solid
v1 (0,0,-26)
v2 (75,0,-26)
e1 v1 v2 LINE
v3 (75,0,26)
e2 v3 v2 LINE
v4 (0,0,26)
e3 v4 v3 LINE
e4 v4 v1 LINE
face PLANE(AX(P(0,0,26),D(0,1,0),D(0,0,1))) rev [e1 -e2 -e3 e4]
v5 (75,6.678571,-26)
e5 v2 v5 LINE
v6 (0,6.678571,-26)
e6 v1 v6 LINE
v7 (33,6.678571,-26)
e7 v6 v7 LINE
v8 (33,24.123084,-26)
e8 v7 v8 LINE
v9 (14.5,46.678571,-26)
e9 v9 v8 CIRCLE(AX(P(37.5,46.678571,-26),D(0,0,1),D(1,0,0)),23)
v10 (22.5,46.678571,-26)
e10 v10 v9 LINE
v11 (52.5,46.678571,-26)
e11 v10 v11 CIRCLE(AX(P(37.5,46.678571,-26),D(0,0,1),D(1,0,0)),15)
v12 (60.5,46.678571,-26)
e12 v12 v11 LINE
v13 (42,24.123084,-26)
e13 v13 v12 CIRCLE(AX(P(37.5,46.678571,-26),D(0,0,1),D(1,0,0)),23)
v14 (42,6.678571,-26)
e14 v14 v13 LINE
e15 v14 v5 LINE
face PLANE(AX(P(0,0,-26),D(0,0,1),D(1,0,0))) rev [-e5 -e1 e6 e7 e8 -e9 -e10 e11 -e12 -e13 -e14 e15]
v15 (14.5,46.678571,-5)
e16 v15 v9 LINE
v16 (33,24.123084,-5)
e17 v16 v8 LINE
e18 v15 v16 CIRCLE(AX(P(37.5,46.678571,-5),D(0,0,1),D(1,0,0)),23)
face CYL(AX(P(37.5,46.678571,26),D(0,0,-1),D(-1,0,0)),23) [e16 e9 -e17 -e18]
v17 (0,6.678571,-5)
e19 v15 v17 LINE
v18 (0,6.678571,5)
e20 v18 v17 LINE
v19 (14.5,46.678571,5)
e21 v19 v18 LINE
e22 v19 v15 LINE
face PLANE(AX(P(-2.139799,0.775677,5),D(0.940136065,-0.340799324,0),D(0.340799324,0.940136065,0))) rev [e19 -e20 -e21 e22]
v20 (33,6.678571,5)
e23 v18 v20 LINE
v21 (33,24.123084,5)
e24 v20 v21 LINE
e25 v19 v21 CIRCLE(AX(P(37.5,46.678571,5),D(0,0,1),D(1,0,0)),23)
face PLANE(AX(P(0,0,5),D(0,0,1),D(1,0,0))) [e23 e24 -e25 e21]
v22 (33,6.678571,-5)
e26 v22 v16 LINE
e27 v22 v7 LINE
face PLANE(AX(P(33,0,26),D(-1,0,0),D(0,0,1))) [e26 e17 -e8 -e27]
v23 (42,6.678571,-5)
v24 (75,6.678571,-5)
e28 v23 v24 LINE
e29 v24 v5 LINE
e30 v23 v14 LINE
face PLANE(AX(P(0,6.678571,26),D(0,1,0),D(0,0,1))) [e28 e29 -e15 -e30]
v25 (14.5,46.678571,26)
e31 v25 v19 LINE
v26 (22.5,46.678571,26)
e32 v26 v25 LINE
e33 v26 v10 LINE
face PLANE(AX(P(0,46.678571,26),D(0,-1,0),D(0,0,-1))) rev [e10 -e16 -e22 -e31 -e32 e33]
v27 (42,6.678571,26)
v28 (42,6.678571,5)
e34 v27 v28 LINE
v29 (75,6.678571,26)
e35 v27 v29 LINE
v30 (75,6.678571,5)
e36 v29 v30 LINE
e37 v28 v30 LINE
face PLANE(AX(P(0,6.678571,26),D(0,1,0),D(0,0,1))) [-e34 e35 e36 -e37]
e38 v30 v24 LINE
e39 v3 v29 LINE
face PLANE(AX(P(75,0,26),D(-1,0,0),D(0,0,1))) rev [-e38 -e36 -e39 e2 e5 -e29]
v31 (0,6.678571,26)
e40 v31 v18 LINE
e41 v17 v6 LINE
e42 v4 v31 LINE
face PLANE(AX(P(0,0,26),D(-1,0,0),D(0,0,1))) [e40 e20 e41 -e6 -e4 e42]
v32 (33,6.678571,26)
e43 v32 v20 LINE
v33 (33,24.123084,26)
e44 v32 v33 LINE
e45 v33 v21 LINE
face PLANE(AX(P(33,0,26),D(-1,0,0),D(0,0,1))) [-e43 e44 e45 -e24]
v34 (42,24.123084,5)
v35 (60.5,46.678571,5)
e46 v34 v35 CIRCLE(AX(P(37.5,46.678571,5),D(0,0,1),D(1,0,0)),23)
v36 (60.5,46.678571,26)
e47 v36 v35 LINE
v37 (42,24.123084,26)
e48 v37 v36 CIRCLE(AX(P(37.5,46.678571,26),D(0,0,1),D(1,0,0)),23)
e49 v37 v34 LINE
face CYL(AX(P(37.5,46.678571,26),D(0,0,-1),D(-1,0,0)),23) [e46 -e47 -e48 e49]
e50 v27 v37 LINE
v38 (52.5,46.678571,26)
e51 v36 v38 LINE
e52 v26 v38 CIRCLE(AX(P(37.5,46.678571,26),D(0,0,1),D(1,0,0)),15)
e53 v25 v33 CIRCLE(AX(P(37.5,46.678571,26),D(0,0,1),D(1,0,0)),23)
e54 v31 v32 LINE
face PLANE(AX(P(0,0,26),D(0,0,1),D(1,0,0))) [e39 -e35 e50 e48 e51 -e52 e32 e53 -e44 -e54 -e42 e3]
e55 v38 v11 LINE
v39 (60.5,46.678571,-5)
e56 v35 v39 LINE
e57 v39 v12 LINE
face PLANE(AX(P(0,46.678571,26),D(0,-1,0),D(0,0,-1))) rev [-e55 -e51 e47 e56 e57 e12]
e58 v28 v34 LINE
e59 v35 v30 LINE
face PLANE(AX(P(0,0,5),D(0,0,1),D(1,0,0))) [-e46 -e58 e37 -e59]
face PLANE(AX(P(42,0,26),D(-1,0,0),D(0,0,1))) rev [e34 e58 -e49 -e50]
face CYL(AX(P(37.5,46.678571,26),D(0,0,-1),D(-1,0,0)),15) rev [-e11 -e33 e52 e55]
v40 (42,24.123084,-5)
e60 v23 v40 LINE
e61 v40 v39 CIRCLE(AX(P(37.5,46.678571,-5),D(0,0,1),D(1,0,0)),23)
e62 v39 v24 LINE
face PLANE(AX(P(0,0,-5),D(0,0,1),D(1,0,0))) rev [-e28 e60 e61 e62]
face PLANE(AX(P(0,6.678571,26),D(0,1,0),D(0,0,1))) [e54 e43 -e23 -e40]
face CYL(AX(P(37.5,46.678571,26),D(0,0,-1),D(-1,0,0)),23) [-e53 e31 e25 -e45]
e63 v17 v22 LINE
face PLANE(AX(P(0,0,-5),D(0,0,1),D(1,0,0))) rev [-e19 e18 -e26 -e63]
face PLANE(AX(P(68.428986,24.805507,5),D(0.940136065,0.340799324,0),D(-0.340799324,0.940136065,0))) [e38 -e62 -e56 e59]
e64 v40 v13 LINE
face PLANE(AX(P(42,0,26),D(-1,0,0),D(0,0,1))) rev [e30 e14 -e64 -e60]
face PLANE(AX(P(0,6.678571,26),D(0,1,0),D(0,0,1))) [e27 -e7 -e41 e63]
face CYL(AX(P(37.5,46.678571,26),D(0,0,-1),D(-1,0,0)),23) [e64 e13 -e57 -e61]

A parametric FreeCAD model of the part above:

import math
import FreeCAD as App
import Part
import Sketcher

V = App.Vector
Q = App.Units.Quantity

doc = App.newDocument("Part")
params = doc.addObject("Spreadsheet::Sheet", "Params")
for row, (alias, value) in enumerate([
    ("sketch1_radius", "23 mm"),
    ("sketch1_radius2", "15 mm"),
    ("sketch1_width", "33 mm"),
    ("sketch1_width2", "75 mm"),
    ("pad1_length", "52 mm"),
    ("sketch2_radius", "23 mm"),
    ("sketch2_width", "33 mm"),
    ("pad2_length", "10 mm"),
], start=1):
    params.set(f"A{row}", alias)
    params.set(f"B{row}", "=" + value)
    params.setAlias(f"B{row}", alias)

body = doc.addObject("PartDesign::Body", "Body")

sketch1 = doc.addObject("Sketcher::SketchObject", "Sketch")
body.addObject(sketch1)
sketch1.AttachmentSupport = (doc.XY_Plane, [""])
sketch1.MapMode = "FlatFace"
sketch1.addGeometry([
    Part.LineSegment(V(42, 7, 0), V(42, 24, 0)),
    Part.ArcOfCircle(Part.Circle(V(37, 47, 0), V(0, 0, 1), 23), math.radians(-79), math.radians(0)),
    Part.LineSegment(V(60, 47, 0), V(52, 47, 0)),
    Part.ArcOfCircle(Part.Circle(V(38, 47, 0), V(0, 0, 1), 15), math.radians(180), math.radians(360)),
    Part.LineSegment(V(22, 47, 0), V(14, 47, 0)),
    Part.ArcOfCircle(Part.Circle(V(38, 47, 0), V(0, 0, 1), 23), math.radians(180), math.radians(259)),
    Part.LineSegment(V(33, 24, 0), V(33, 7, 0)),
    Part.LineSegment(V(33, 7, 0), V(0, 7, 0)),
    Part.LineSegment(V(0, 7, 0), V(0, 0, 0)),
    Part.LineSegment(V(0, 0, 0), V(75, 0, 0)),
    Part.LineSegment(V(75, 0, 0), V(75, 7, 0)),
    Part.LineSegment(V(75, 7, 0), V(42, 7, 0)),
], False)
sketch1.addConstraint([
    Sketcher.Constraint("Coincident", 0, 2, 1, 1),
    Sketcher.Constraint("Coincident", 1, 2, 2, 1),
    Sketcher.Constraint("Coincident", 2, 2, 3, 2),
    Sketcher.Constraint("Coincident", 3, 1, 4, 1),
    Sketcher.Constraint("Coincident", 4, 2, 5, 1),
    Sketcher.Constraint("Coincident", 5, 2, 6, 1),
    Sketcher.Constraint("Coincident", 6, 2, 7, 1),
    Sketcher.Constraint("Coincident", 7, 2, 8, 1),
    Sketcher.Constraint("Coincident", 8, 2, 9, 1),
    Sketcher.Constraint("Coincident", 9, 2, 10, 1),
    Sketcher.Constraint("Coincident", 10, 2, 11, 1),
    Sketcher.Constraint("Coincident", 11, 2, 0, 1),
    Sketcher.Constraint("Vertical", 0),
    Sketcher.Constraint("Horizontal", 2),
    Sketcher.Constraint("Horizontal", 4),
    Sketcher.Constraint("Vertical", 6),
    Sketcher.Constraint("Horizontal", 7),
    Sketcher.Constraint("Vertical", 8),
    Sketcher.Constraint("Horizontal", 9),
    Sketcher.Constraint("Vertical", 10),
    Sketcher.Constraint("Horizontal", 11),
    Sketcher.Constraint("Coincident", 8, 2, -1, 1),
    Sketcher.Constraint("Coincident", 3, 3, 1, 3),
    Sketcher.Constraint("Coincident", 5, 3, 1, 3),
    Sketcher.Constraint("Equal", 1, 5),
    Sketcher.Constraint("Horizontal", 5, 3, 1, 2),
    Sketcher.Constraint("Horizontal", 2, 2, 3, 1),
    Sketcher.Constraint("Horizontal", 0, 2, 5, 2),
    Sketcher.Constraint("Horizontal", 7, 2, 10, 2),
    Sketcher.Constraint("Equal", 7, 11),
    Sketcher.Constraint("Radius", 1, Q("23 mm")),
    Sketcher.Constraint("Radius", 3, Q("15 mm")),
    Sketcher.Constraint("DistanceX", 7, 2, 7, 1, Q("33 mm")),
    Sketcher.Constraint("DistanceX", 9, 1, 9, 2, Q("75 mm")),
    Sketcher.Constraint("DistanceY", 6, 2, 1, 3, Q("40 mm")),
    Sketcher.Constraint("DistanceY", 8, 2, 8, 1, Q("6.678571 mm")),
])
sketch1.setExpression("Constraints[30]", "Params.sketch1_radius")
sketch1.setExpression("Constraints[31]", "Params.sketch1_radius2")
sketch1.setExpression("Constraints[32]", "Params.sketch1_width")
sketch1.setExpression("Constraints[33]", "Params.sketch1_width2")
pad1 = doc.addObject("PartDesign::Pad", "Pad")
body.addObject(pad1)
pad1.Profile = sketch1
pad1.setExpression("Length", "Params.pad1_length")
pad1.Midplane = True

sketch2 = doc.addObject("Sketcher::SketchObject", "Sketch001")
body.addObject(sketch2)
sketch2.AttachmentSupport = (doc.XY_Plane, [""])
sketch2.MapMode = "FlatFace"
sketch2.addGeometry([
    Part.ArcOfCircle(Part.Circle(V(37, 47, 0), V(0, 0, 1), 23), math.radians(-79), math.radians(0)),
    Part.LineSegment(V(42, 24, 0), V(42, 7, 0)),
    Part.LineSegment(V(42, 7, 0), V(75, 7, 0)),
    Part.LineSegment(V(75, 7, 0), V(60, 47, 0)),
    Part.ArcOfCircle(Part.Circle(V(38, 47, 0), V(0, 0, 1), 23), math.radians(180), math.radians(259)),
    Part.LineSegment(V(14, 47, 0), V(0, 7, 0)),
    Part.LineSegment(V(0, 7, 0), V(33, 7, 0)),
    Part.LineSegment(V(33, 7, 0), V(33, 24, 0)),
], False)
sketch2.addConstraint([
    Sketcher.Constraint("Coincident", 0, 1, 1, 1),
    Sketcher.Constraint("Coincident", 1, 2, 2, 1),
    Sketcher.Constraint("Coincident", 2, 2, 3, 1),
    Sketcher.Constraint("Coincident", 3, 2, 0, 2),
    Sketcher.Constraint("Coincident", 4, 1, 5, 1),
    Sketcher.Constraint("Coincident", 5, 2, 6, 1),
    Sketcher.Constraint("Coincident", 6, 2, 7, 1),
    Sketcher.Constraint("Coincident", 7, 2, 4, 2),
    Sketcher.Constraint("Vertical", 1),
    Sketcher.Constraint("Horizontal", 2),
    Sketcher.Constraint("Horizontal", 6),
    Sketcher.Constraint("Vertical", 7),
    Sketcher.Constraint("Coincident", 4, 3, 0, 3),
    Sketcher.Constraint("Equal", 0, 4),
    Sketcher.Constraint("PointOnObject", 5, 2, -2),
    Sketcher.Constraint("Horizontal", 4, 3, 3, 2),
    Sketcher.Constraint("Horizontal", 3, 2, 4, 1),
    Sketcher.Constraint("Horizontal", 2, 2, 5, 2),
    Sketcher.Constraint("Horizontal", 0, 1, 7, 2),
    Sketcher.Constraint("Equal", 2, 6),
    Sketcher.Constraint("Radius", 0, Q("23 mm")),
    Sketcher.Constraint("DistanceX", 2, 1, 2, 2, Q("33 mm")),
    Sketcher.Constraint("DistanceX", -1, 1, 0, 1, Q("42 mm")),
    Sketcher.Constraint("DistanceY", 1, 2, 4, 3, Q("40 mm")),
    Sketcher.Constraint("DistanceY", -1, 1, 0, 3, Q("46.678571 mm")),
])
sketch2.setExpression("Constraints[20]", "Params.sketch2_radius")
sketch2.setExpression("Constraints[21]", "Params.sketch2_width")
pad2 = doc.addObject("PartDesign::Pad", "Pad001")
body.addObject(pad2)
pad2.Profile = sketch2
pad2.setExpression("Length", "Params.pad2_length")
pad2.Midplane = True

doc.recompute()
